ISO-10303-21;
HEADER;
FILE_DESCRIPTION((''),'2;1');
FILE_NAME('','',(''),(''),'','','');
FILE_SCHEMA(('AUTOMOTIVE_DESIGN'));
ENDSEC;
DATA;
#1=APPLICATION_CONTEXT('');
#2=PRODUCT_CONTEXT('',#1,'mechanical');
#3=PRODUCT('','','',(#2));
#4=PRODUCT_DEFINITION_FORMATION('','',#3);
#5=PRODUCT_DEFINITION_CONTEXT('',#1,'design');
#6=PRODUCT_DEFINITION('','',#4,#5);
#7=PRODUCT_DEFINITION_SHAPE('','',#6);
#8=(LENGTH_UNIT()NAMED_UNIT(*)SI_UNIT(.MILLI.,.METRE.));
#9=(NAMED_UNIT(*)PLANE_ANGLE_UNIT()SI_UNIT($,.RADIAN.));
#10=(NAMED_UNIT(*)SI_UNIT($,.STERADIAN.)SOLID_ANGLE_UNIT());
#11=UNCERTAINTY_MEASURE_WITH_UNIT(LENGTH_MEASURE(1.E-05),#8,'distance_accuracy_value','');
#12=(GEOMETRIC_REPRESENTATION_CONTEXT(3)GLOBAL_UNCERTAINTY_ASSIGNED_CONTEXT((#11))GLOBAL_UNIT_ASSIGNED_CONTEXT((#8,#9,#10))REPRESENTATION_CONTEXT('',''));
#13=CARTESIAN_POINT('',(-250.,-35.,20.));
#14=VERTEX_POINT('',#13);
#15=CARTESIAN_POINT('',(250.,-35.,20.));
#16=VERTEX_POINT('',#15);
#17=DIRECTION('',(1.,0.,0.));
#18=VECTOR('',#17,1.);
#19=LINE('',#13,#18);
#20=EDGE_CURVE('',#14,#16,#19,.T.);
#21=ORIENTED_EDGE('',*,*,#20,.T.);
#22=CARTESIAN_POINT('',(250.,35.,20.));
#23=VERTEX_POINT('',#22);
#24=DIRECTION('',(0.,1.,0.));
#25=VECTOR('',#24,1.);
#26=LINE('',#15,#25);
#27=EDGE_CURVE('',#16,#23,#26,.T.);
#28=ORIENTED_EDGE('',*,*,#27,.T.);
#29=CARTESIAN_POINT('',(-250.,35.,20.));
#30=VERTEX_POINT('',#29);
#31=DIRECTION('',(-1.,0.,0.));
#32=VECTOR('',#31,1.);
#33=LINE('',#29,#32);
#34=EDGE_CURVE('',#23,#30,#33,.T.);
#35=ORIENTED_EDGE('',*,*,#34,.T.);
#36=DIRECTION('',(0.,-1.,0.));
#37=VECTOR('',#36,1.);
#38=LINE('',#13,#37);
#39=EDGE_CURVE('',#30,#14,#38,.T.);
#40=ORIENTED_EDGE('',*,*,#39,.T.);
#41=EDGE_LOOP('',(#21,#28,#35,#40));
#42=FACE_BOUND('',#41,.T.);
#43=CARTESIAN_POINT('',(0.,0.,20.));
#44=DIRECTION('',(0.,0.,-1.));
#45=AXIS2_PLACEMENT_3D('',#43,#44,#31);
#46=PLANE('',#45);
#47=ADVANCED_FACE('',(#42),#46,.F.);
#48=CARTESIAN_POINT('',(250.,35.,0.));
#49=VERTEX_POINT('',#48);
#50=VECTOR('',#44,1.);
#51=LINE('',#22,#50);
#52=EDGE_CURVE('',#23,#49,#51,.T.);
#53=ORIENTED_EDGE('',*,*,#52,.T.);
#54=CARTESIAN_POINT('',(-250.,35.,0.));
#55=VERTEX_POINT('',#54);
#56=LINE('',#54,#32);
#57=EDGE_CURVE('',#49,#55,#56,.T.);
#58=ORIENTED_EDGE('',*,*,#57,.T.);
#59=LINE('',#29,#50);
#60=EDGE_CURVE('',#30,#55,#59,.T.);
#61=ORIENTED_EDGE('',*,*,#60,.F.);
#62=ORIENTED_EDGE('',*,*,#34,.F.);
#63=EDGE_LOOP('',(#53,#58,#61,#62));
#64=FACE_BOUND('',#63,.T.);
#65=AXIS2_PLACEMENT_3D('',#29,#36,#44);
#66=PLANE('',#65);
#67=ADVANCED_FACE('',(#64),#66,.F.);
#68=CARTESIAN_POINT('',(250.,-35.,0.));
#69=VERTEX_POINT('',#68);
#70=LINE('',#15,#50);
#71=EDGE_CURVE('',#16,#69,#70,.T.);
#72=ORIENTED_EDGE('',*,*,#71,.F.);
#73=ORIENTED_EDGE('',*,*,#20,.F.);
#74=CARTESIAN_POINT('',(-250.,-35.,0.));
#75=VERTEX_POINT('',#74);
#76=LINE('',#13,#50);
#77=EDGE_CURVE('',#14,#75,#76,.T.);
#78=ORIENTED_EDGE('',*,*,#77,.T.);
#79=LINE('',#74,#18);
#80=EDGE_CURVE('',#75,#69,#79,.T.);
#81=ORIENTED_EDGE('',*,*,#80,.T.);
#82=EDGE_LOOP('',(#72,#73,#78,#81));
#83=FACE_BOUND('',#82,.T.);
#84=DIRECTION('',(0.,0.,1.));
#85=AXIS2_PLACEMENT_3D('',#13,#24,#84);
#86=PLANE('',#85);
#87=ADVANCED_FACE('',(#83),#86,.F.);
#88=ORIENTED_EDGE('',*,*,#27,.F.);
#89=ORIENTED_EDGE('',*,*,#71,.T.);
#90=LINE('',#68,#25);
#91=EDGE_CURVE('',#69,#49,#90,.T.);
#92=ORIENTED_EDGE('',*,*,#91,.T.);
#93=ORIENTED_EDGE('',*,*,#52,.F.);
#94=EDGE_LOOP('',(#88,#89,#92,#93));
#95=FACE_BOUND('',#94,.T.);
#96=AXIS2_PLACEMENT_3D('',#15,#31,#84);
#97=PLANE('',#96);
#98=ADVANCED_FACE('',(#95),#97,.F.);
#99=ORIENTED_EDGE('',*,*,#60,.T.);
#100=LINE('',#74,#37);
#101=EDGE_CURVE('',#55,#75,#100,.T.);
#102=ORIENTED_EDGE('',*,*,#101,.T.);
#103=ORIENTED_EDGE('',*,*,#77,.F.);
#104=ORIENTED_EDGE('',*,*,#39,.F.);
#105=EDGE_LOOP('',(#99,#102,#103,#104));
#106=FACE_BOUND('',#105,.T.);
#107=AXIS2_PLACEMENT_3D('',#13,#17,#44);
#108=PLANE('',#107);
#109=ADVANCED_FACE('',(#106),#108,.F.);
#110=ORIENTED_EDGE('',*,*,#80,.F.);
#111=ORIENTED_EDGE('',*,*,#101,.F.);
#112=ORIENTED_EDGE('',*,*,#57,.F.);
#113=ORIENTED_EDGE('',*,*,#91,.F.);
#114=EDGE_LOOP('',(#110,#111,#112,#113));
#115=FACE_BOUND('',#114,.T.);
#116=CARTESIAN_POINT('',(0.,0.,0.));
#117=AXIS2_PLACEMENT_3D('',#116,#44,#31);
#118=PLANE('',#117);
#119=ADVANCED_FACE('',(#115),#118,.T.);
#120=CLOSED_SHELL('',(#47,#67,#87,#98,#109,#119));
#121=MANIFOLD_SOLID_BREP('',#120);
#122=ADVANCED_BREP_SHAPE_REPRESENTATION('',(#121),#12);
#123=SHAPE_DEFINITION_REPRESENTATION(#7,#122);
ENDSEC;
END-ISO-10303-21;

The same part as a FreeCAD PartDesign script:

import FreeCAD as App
import Part
import Sketcher

V = App.Vector

doc = App.newDocument("Part")
body = doc.addObject("PartDesign::Body", "Body")

# Sketch on XY plane
sketch1 = body.newObject("Sketcher::SketchObject", "Sketch")
sketch1.AttachmentSupport = (doc.getObject("XY_Plane"), [""])
sketch1.MapMode = "FlatFace"
sketch1.addGeometry([
    Part.LineSegment(V(-250, 35, 0), V(-250, -35, 0)),
    Part.LineSegment(V(-250, -35, 0), V(250, -35, 0)),
    Part.LineSegment(V(250, -35, 0), V(250, 35, 0)),
    Part.LineSegment(V(250, 35, 0), V(-250, 35, 0)),
], False)
sketch1.addConstraint([
    Sketcher.Constraint("Coincident", 0, 2, 1, 1),
    Sketcher.Constraint("Coincident", 1, 2, 2, 1),
    Sketcher.Constraint("Coincident", 2, 2, 3, 1),
    Sketcher.Constraint("Coincident", 3, 2, 0, 1),
    Sketcher.Constraint("Vertical", 0),
    Sketcher.Constraint("Horizontal", 1),
    Sketcher.Constraint("Vertical", 2),
    Sketcher.Constraint("Horizontal", 3),
    Sketcher.Constraint("Symmetric", 0, 2, 2, 2, -1, 1),
    Sketcher.Constraint("DistanceX", 1, 1, 1, 2, 500.0),
    Sketcher.Constraint("DistanceY", 0, 2, 0, 1, 70.0),
])
pad1 = body.newObject("PartDesign::Pad", "Pad")
pad1.Profile = sketch1
pad1.Length = 20

doc.recompute()
